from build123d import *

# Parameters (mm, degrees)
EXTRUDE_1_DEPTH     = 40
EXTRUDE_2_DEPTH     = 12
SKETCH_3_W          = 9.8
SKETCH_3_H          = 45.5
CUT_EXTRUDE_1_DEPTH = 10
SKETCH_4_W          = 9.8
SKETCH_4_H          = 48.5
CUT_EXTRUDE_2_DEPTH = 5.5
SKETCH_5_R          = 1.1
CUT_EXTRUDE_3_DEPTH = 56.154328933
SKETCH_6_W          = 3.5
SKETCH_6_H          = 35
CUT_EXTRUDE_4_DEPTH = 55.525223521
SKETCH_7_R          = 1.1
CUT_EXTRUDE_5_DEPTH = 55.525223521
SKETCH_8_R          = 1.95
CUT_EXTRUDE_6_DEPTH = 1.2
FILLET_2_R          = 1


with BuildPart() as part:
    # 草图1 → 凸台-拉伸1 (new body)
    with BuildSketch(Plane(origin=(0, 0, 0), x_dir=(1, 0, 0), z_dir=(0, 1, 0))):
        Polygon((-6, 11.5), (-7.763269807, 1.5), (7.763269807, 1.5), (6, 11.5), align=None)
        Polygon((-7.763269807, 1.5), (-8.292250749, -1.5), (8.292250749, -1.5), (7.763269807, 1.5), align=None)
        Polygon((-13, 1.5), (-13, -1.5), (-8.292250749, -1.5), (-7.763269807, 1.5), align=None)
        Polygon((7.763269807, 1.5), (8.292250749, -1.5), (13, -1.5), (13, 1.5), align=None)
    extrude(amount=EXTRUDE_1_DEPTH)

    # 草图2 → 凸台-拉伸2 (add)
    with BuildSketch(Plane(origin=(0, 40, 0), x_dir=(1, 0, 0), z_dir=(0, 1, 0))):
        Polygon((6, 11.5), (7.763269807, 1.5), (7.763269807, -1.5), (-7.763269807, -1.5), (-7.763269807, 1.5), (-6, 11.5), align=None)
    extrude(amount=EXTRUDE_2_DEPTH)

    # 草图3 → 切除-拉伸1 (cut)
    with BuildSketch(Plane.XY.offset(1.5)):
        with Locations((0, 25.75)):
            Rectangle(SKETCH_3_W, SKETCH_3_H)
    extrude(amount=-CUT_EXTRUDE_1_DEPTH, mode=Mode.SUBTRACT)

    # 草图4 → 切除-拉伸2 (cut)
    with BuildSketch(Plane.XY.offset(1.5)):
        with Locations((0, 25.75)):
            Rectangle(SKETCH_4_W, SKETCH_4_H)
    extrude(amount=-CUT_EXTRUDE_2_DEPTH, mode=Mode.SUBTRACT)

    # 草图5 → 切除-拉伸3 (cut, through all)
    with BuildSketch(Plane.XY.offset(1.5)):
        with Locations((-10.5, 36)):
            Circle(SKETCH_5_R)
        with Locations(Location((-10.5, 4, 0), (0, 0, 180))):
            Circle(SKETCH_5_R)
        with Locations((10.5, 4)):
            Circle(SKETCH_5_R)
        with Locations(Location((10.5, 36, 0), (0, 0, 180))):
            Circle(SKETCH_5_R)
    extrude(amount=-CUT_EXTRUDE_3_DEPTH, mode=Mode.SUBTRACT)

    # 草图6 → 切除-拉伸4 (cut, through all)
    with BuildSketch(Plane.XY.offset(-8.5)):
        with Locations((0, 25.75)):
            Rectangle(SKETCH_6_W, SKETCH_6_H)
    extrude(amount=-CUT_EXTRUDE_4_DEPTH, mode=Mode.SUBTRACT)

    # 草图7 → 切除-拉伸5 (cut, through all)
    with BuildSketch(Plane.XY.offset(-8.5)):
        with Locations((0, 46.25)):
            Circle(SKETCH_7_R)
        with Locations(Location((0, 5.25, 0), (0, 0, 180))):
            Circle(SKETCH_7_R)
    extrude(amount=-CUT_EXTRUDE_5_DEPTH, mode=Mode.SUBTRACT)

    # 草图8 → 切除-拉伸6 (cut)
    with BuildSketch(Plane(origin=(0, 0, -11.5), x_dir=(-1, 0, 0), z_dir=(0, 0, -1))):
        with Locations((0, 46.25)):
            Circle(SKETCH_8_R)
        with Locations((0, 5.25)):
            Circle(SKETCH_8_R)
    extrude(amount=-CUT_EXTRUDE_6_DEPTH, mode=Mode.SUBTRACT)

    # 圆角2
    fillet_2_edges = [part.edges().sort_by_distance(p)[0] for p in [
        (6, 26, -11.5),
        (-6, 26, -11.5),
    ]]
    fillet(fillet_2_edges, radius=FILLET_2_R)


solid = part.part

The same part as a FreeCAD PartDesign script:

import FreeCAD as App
import Part
import Sketcher
Q = App.Units.Quantity


def edges_at(feature, points):
    """Names of the edges that pass closest to the given points."""
    edges = feature.Shape.Edges
    near = lambda p: min(range(len(edges)), key=lambda i: edges[i].distToShape(Part.Vertex(*p))[0])
    return sorted({f"Edge{near(p) + 1}" for p in points})


def add_polygon(sketch, points):
    """Adds a closed chain of lines whose ends are joined by coincident constraints."""
    first, n = sketch.GeometryCount, len(points)
    for a, b in zip(points, points[1:] + points[:1]):
        sketch.addGeometry(Part.LineSegment(App.Vector(*a, 0), App.Vector(*b, 0)), False)
    for i in range(n):
        sketch.addConstraint(Sketcher.Constraint("Coincident", first + i, 2, first + (i + 1) % n, 1))

doc = App.newDocument("Part")
body = doc.addObject("PartDesign::Body", "Body")

sketch1 = body.newObject("Sketcher::SketchObject", "Sketch")
sketch1.AttachmentSupport = (doc.getObject("XZ_Plane"), [""])
sketch1.MapMode = "FlatFace"
add_polygon(sketch1, [(-6, -11.5), (-7.8, -1.5), (-13, -1.5), (-13, 1.5), (13, 1.5), (13, -1.5), (7.8, -1.5), (6, -11.5)])
sketch1.addConstraint(Sketcher.Constraint("Horizontal", 1))
sketch1.addConstraint(Sketcher.Constraint("Vertical", 2))
sketch1.addConstraint(Sketcher.Constraint("Horizontal", 3))
sketch1.addConstraint(Sketcher.Constraint("Vertical", 4))
sketch1.addConstraint(Sketcher.Constraint("Horizontal", 5))
sketch1.addConstraint(Sketcher.Constraint("Horizontal", 7))
sketch1.addConstraint(Sketcher.Constraint("Symmetric", 1, 2, 3, 2, -1, 1))
sketch1.addConstraint(Sketcher.Constraint("Symmetric", 0, 2, 5, 2, -2))
sketch1.addConstraint(Sketcher.Constraint("Equal", 0, 6))
sketch1.addConstraint(Sketcher.Constraint("DistanceX", 3, 1, 3, 2, Q("26 mm")))
sketch1.addConstraint(Sketcher.Constraint("DistanceX", 7, 2, 7, 1, Q("12 mm")))
sketch1.addConstraint(Sketcher.Constraint("DistanceY", 2, 1, 2, 2, Q("3 mm")))
sketch1.addConstraint(Sketcher.Constraint("Angle", 0, Q("100 deg")))
sketch1.addConstraint(Sketcher.Constraint("DistanceY", 6, 2, 5, 2, Q("10 mm")))
pad1 = body.newObject("PartDesign::Pad", "Pad")
pad1.Profile = sketch1
pad1.Length = 40
pad1.Reversed = True

sketch2 = body.newObject("Sketcher::SketchObject", "Sketch001")
sketch2.AttachmentSupport = (doc.getObject("XZ_Plane"), [""])
sketch2.MapMode = "FlatFace"
sketch2.AttachmentOffset = App.Placement(App.Vector(0, 0, -40), App.Rotation())
add_polygon(sketch2, [(7.8, -1.5), (6, -11.5), (-6, -11.5), (-7.8, -1.5), (-7.8, 1.5), (7.8, 1.5)])
sketch2.addConstraint(Sketcher.Constraint("Horizontal", 1))
sketch2.addConstraint(Sketcher.Constraint("Vertical", 3))
sketch2.addConstraint(Sketcher.Constraint("Horizontal", 4))
sketch2.addConstraint(Sketcher.Constraint("Vertical", 5))
sketch2.addConstraint(Sketcher.Constraint("Symmetric", 2, 2, 4, 2, -1, 1))
sketch2.addConstraint(Sketcher.Constraint("Horizontal", 2, 2, 5, 2))
sketch2.addConstraint(Sketcher.Constraint("Equal", 0, 2))
sketch2.addConstraint(Sketcher.Constraint("DistanceX", 1, 2, 1, 1, Q("12 mm")))
sketch2.addConstraint(Sketcher.Constraint("DistanceY", 3, 1, 3, 2, Q("3 mm")))
sketch2.addConstraint(Sketcher.Constraint("Angle", 0, Q("-100 deg")))
sketch2.addConstraint(Sketcher.Constraint("DistanceY", 1, 2, 2, 2, Q("10 mm")))
pad2 = body.newObject("PartDesign::Pad", "Pad001")
pad2.Profile = sketch2
pad2.Length = 12
pad2.Reversed = True

sketch3 = body.newObject("Sketcher::SketchObject", "Sketch002")
sketch3.AttachmentSupport = (doc.getObject("XY_Plane"), [""])
sketch3.MapMode = "FlatFace"
sketch3.AttachmentOffset = App.Placement(App.Vector(0, 0, 1.5), App.Rotation())
add_polygon(sketch3, [(-5, 48), (-5, 3), (5, 3), (5, 48)])
sketch3.addConstraint(Sketcher.Constraint("Vertical", 0))
sketch3.addConstraint(Sketcher.Constraint("Horizontal", 1))
sketch3.addConstraint(Sketcher.Constraint("Vertical", 2))
sketch3.addConstraint(Sketcher.Constraint("Horizontal", 3))
sketch3.addConstraint(Sketcher.Constraint("DistanceX", 1, 1, 1, 2, Q("9.8 mm")))
sketch3.addConstraint(Sketcher.Constraint("DistanceY", 0, 2, 0, 1, Q("45.5 mm")))
sketch3.addConstraint(Sketcher.Constraint("DistanceY", -1, 1, 0, 2, Q("3 mm")))
sketch3.addConstraint(Sketcher.Constraint("DistanceX", 0, 2, -1, 1, Q("4.9 mm")))
pocket1 = body.newObject("PartDesign::Pocket", "Pocket")
pocket1.Profile = sketch3
pocket1.Length = 10

sketch4 = body.newObject("Sketcher::SketchObject", "Sketch003")
sketch4.AttachmentSupport = (doc.getObject("XY_Plane"), [""])
sketch4.MapMode = "FlatFace"
sketch4.AttachmentOffset = App.Placement(App.Vector(0, 0, 1.5), App.Rotation())
add_polygon(sketch4, [(-5, 50), (-5, 2), (5, 2), (5, 50)])
sketch4.addConstraint(Sketcher.Constraint("Vertical", 0))
sketch4.addConstraint(Sketcher.Constraint("Horizontal", 1))
sketch4.addConstraint(Sketcher.Constraint("Vertical", 2))
sketch4.addConstraint(Sketcher.Constraint("Horizontal", 3))
sketch4.addConstraint(Sketcher.Constraint("DistanceX", 1, 1, 1, 2, Q("9.8 mm")))
sketch4.addConstraint(Sketcher.Constraint("DistanceY", 0, 2, 0, 1, Q("48.5 mm")))
sketch4.addConstraint(Sketcher.Constraint("DistanceY", -1, 1, 2, 2, Q("50 mm")))
sketch4.addConstraint(Sketcher.Constraint("DistanceX", 0, 2, -1, 1, Q("4.9 mm")))
pocket2 = body.newObject("PartDesign::Pocket", "Pocket001")
pocket2.Profile = sketch4
pocket2.Length = 5.5

sketch5 = body.newObject("Sketcher::SketchObject", "Sketch004")
sketch5.AttachmentSupport = (doc.getObject("XY_Plane"), [""])
sketch5.MapMode = "FlatFace"
sketch5.AttachmentOffset = App.Placement(App.Vector(0, 0, 1.5), App.Rotation())
sketch5.addGeometry(Part.Circle(App.Vector(-10.5, 36, 0), App.Vector(0, 0, 1), 1.1), False)
sketch5.addGeometry(Part.Circle(App.Vector(-10.5, 4, 0), App.Vector(0, 0, 1), 1.1), False)
sketch5.addGeometry(Part.Circle(App.Vector(10.5, 4, 0), App.Vector(0, 0, 1), 1.1), False)
sketch5.addGeometry(Part.Circle(App.Vector(10.5, 36, 0), App.Vector(0, 0, 1), 1.1), False)
sketch5.addConstraint(Sketcher.Constraint("Equal", 0, 1))
sketch5.addConstraint(Sketcher.Constraint("Equal", 1, 2))
sketch5.addConstraint(Sketcher.Constraint("Equal", 2, 3))
sketch5.addConstraint(Sketcher.Constraint("Symmetric", 1, 3, 2, 3, -2))
sketch5.addConstraint(Sketcher.Constraint("Symmetric", 0, 3, 3, 3, -2))
sketch5.addConstraint(Sketcher.Constraint("Vertical", 0, 3, 1, 3))
sketch5.addConstraint(Sketcher.Constraint("Diameter", 0, Q("2.2 mm")))
sketch5.addConstraint(Sketcher.Constraint("DistanceY", -1, 1, 0, 3, Q("36 mm")))
sketch5.addConstraint(Sketcher.Constraint("DistanceY", -1, 1, 1, 3, Q("4 mm")))
sketch5.addConstraint(Sketcher.Constraint("DistanceX", 1, 3, 2, 3, Q("21 mm")))
pocket3 = body.newObject("PartDesign::Pocket", "Pocket002")
pocket3.Profile = sketch5
pocket3.Type = "ThroughAll"

sketch6 = body.newObject("Sketcher::SketchObject", "Sketch005")
sketch6.AttachmentSupport = (doc.getObject("XY_Plane"), [""])
sketch6.MapMode = "FlatFace"
sketch6.AttachmentOffset = App.Placement(App.Vector(0, 0, -8.5), App.Rotation())
add_polygon(sketch6, [(-1.8, 43.2), (-1.8, 8.2), (1.8, 8.2), (1.8, 43.2)])
sketch6.addConstraint(Sketcher.Constraint("Vertical", 0))
sketch6.addConstraint(Sketcher.Constraint("Horizontal", 1))
sketch6.addConstraint(Sketcher.Constraint("Vertical", 2))
sketch6.addConstraint(Sketcher.Constraint("Horizontal", 3))
sketch6.addConstraint(Sketcher.Constraint("DistanceY", 0, 2, 0, 1, Q("35 mm")))
sketch6.addConstraint(Sketcher.Constraint("DistanceX", 1, 1, 1, 2, Q("3.5 mm")))
sketch6.addConstraint(Sketcher.Constraint("DistanceX", 0, 2, -1, 1, Q("1.75 mm")))
sketch6.addConstraint(Sketcher.Constraint("DistanceY", -1, 1, 0, 2, Q("8.25 mm")))
pocket4 = body.newObject("PartDesign::Pocket", "Pocket003")
pocket4.Profile = sketch6
pocket4.Type = "ThroughAll"

sketch7 = body.newObject("Sketcher::SketchObject", "Sketch006")
sketch7.AttachmentSupport = (doc.getObject("XY_Plane"), [""])
sketch7.MapMode = "FlatFace"
sketch7.AttachmentOffset = App.Placement(App.Vector(0, 0, -8.5), App.Rotation())
sketch7.addGeometry(Part.Circle(App.Vector(0, 46.2, 0), App.Vector(0, 0, 1), 1.1), False)
sketch7.addGeometry(Part.Circle(App.Vector(0, 5.2, 0), App.Vector(0, 0, 1), 1.1), False)
sketch7.addConstraint(Sketcher.Constraint("Equal", 0, 1))
sketch7.addConstraint(Sketcher.Constraint("PointOnObject", 0, 3, -2))
sketch7.addConstraint(Sketcher.Constraint("PointOnObject", 1, 3, -2))
sketch7.addConstraint(Sketcher.Constraint("Diameter", 0, Q("2.2 mm")))
sketch7.addConstraint(Sketcher.Constraint("DistanceY", 1, 3, 0, 3, Q("41 mm")))
sketch7.addConstraint(Sketcher.Constraint("DistanceY", -1, 1, 0, 3, Q("46.25 mm")))
pocket5 = body.newObject("PartDesign::Pocket", "Pocket004")
pocket5.Profile = sketch7
pocket5.Type = "ThroughAll"

sketch8 = body.newObject("Sketcher::SketchObject", "Sketch007")
sketch8.AttachmentSupport = (doc.getObject("XY_Plane"), [""])
sketch8.MapMode = "FlatFace"
sketch8.AttachmentOffset = App.Placement(App.Vector(0, 0, -11.5), App.Rotation())
sketch8.addGeometry(Part.Circle(App.Vector(0, 46.2, 0), App.Vector(0, 0, 1), 1.9), False)
sketch8.addGeometry(Part.Circle(App.Vector(0, 5.2, 0), App.Vector(0, 0, 1), 1.9), False)
sketch8.addConstraint(Sketcher.Constraint("Equal", 0, 1))
sketch8.addConstraint(Sketcher.Constraint("PointOnObject", 0, 3, -2))
sketch8.addConstraint(Sketcher.Constraint("PointOnObject", 1, 3, -2))
sketch8.addConstraint(Sketcher.Constraint("Diameter", 0, Q("3.9 mm")))
sketch8.addConstraint(Sketcher.Constraint("DistanceY", 1, 3, 0, 3, Q("41 mm")))
sketch8.addConstraint(Sketcher.Constraint("DistanceY", -1, 1, 0, 3, Q("46.25 mm")))
pocket6 = body.newObject("PartDesign::Pocket", "Pocket005")
pocket6.Profile = sketch8
pocket6.Length = 1.2
pocket6.Reversed = True
doc.recompute()

fillet = body.newObject("PartDesign::Fillet", "Fillet")
fillet.Base = (pocket6, edges_at(pocket6, [(6, 26, -11.5), (-6, 26, -11.5)]))
fillet.Radius = 1

doc.recompute()
